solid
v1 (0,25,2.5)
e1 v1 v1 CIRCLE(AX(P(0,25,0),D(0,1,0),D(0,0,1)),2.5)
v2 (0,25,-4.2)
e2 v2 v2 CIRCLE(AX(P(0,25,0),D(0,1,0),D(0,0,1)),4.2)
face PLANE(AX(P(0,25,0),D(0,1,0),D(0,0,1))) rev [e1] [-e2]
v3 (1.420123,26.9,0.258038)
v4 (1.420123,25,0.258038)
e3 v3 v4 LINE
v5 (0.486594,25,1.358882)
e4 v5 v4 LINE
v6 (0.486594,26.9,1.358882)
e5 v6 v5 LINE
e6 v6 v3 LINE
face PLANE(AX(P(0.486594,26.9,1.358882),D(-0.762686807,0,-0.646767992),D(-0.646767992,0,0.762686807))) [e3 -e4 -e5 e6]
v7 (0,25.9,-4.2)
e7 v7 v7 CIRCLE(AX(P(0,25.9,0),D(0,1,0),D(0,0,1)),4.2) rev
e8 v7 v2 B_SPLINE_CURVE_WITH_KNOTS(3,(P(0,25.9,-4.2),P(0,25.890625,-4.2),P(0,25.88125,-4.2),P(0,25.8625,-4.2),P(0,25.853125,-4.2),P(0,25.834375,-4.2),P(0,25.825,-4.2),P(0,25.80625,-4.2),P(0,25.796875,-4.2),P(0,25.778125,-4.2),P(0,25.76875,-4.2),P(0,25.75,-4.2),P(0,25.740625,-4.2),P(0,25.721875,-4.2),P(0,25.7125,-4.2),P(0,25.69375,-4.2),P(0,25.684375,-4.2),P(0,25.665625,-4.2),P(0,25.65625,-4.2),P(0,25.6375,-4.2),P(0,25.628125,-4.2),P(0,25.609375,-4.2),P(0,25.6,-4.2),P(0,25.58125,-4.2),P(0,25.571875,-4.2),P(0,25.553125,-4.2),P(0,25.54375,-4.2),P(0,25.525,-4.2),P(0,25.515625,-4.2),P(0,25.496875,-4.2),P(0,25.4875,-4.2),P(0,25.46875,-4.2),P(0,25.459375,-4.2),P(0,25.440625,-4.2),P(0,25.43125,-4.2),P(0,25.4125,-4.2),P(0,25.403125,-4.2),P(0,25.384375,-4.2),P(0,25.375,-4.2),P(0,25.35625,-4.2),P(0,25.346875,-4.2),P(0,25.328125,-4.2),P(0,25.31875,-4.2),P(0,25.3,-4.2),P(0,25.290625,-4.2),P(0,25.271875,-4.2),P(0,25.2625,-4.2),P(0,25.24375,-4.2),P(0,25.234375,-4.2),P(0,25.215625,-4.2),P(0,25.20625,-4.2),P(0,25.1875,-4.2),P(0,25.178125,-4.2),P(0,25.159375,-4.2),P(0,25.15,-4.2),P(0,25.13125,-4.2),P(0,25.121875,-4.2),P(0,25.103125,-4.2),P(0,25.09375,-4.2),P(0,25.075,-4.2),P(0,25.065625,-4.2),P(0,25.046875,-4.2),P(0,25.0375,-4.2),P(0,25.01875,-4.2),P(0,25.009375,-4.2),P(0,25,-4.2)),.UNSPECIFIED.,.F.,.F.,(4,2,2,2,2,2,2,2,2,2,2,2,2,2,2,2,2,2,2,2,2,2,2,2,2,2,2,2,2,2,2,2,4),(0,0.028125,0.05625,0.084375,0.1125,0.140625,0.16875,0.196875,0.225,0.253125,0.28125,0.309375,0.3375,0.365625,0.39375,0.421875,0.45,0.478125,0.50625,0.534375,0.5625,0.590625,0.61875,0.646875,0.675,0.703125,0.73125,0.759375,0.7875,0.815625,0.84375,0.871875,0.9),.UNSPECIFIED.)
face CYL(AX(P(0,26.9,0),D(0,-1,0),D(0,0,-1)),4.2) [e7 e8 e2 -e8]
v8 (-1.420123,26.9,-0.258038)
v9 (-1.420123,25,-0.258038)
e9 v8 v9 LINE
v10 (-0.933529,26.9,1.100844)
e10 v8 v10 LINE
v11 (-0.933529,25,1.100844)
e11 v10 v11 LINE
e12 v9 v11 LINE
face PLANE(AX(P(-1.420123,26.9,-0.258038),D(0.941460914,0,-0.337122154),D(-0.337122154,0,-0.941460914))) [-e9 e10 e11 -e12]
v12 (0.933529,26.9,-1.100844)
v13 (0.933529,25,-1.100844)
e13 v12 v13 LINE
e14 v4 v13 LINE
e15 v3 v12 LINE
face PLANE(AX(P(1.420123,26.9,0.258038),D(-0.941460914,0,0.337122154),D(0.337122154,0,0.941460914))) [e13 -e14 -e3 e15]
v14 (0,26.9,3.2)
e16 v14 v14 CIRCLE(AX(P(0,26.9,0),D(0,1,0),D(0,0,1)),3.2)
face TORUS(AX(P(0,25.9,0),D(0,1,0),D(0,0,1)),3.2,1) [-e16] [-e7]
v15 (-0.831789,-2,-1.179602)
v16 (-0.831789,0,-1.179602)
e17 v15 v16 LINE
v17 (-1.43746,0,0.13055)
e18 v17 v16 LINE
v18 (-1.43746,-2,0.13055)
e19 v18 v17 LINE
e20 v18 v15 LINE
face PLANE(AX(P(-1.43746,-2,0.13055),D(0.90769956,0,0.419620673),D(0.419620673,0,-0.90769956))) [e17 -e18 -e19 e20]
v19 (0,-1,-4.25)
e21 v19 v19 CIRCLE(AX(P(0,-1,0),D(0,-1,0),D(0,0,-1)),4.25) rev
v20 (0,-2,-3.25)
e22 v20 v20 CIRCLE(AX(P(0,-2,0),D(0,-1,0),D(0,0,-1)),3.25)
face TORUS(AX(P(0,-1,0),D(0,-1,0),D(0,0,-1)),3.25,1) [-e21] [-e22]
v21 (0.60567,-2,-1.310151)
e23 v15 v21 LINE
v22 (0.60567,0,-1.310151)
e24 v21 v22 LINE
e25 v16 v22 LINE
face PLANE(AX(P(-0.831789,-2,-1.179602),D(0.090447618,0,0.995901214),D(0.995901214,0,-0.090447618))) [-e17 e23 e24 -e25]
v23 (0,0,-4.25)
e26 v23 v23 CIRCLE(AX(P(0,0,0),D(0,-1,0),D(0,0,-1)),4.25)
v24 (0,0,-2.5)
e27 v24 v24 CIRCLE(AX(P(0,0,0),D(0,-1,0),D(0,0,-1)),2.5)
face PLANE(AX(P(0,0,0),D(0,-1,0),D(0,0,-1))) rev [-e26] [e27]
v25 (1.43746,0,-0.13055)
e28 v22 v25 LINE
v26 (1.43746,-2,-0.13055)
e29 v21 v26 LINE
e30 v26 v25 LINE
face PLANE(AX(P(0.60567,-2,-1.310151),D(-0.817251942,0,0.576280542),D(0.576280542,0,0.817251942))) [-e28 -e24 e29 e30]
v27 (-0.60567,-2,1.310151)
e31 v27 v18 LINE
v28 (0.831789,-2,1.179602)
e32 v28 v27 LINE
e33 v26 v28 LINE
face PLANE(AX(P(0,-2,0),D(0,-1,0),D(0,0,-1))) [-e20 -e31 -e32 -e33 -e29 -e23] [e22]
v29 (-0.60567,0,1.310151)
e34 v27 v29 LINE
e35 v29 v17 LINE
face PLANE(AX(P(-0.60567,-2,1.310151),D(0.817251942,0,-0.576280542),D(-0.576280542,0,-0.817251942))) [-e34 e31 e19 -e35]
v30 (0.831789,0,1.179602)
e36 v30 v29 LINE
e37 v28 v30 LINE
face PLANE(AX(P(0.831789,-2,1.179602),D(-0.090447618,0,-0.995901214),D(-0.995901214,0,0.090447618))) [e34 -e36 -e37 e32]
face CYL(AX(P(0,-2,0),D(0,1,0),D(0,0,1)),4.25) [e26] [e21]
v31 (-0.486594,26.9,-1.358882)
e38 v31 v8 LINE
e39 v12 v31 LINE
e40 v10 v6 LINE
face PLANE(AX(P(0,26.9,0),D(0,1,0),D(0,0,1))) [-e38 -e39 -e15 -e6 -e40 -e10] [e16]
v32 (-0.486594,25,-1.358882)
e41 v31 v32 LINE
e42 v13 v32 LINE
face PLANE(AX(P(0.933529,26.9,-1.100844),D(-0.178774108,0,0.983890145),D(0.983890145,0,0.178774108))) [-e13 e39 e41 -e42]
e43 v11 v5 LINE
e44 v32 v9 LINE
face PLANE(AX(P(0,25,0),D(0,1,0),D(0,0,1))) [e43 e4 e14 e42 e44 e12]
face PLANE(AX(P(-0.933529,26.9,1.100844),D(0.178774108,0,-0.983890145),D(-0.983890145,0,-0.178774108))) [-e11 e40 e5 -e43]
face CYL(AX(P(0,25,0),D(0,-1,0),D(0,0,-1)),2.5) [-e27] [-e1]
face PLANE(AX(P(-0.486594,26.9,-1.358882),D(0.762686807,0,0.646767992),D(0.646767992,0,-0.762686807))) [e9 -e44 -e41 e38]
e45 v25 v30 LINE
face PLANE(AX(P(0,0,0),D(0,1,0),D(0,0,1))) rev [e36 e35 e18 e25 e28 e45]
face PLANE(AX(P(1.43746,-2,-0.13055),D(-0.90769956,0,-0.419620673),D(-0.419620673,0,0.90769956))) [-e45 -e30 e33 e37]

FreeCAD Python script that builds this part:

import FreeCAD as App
import Part
import Sketcher

V = App.Vector
Q = App.Units.Quantity


def edges_at(feature, points):
    """Names of the edges that pass closest to the given points."""
    edges = feature.Shape.Edges
    near = lambda p: min(range(len(edges)), key=lambda i: edges[i].distToShape(Part.Vertex(*p))[0])
    return sorted({f"Edge{near(p) + 1}" for p in points})


def add_polygon(sketch, points):
    """Adds a closed chain of lines whose ends are joined by coincident constraints."""
    first, n = sketch.GeometryCount, len(points)
    for a, b in zip(points, points[1:] + points[:1]):
        sketch.addGeometry(Part.LineSegment(App.Vector(*a, 0), App.Vector(*b, 0)), False)
    for i in range(n):
        sketch.addConstraint(Sketcher.Constraint("Coincident", first + i, 2, first + (i + 1) % n, 1))

doc = App.newDocument("Part")
params = doc.addObject("Spreadsheet::Sheet", "Params")
for row, (alias, value) in enumerate([
    ("sketch1_diameter", "5 mm"),
    ("pad1_length", "25 mm"),
    ("sketch2_diameter", "8.4 mm"),
    ("pad2_length", "1.9 mm"),
    ("sketch3_diameter", "8.5 mm"),
    ("pad3_length", "2 mm"),
    ("fillet_radius", "1 mm"),
], start=1):
    params.set(f"A{row}", alias)
    params.set(f"B{row}", "=" + value)
    params.setAlias(f"B{row}", alias)

body = doc.addObject("PartDesign::Body", "Body")

# Sketch on XZ plane
sketch1 = body.newObject("Sketcher::SketchObject", "Sketch")
sketch1.AttachmentSupport = (doc.getObject("XZ_Plane"), [""])
sketch1.MapMode = "FlatFace"
sketch1.addGeometry(Part.Circle(V(0, 0, 0), V(0, 0, 1), 2.5), False)
sketch1.addConstraint(Sketcher.Constraint("Coincident", 0, 3, -1, 1))
sketch1.addConstraint(Sketcher.Constraint("Diameter", 0, Q("5 mm")))
sketch1.setExpression("Constraints[1]", "Params.sketch1_diameter")
pad1 = body.newObject("PartDesign::Pad", "Pad")
pad1.Profile = sketch1
pad1.setExpression("Length", "Params.pad1_length")
pad1.Reversed = True

# Sketch on XZ plane
sketch2 = body.newObject("Sketcher::SketchObject", "Sketch001")
sketch2.AttachmentSupport = (doc.getObject("XZ_Plane"), [""])
sketch2.MapMode = "FlatFace"
sketch2.AttachmentOffset = App.Placement(V(0, 0, -25), App.Rotation())
sketch2.addGeometry(Part.Circle(V(0, 0, 0), V(0, 0, 1), 4.2), False)  # 0
add_polygon(sketch2, [(-0.486594, -1.358882), (0.933529, -1.100844), (1.420123, 0.258038), (0.486594, 1.358882), (-0.933529, 1.100844), (-1.420123, -0.258038)])  # lines 1-6
sketch2.addConstraint(Sketcher.Constraint("Coincident", 0, 3, -1, 1))
sketch2.addConstraint(Sketcher.Constraint("Symmetric", 1, 2, 4, 2, -1, 1))
sketch2.addConstraint(Sketcher.Constraint("Symmetric", 2, 2, 5, 2, -1, 1))
sketch2.addConstraint(Sketcher.Constraint("Symmetric", 3, 2, 6, 2, -1, 1))
sketch2.addConstraint(Sketcher.Constraint("Equal", 1, 2))
sketch2.addConstraint(Sketcher.Constraint("Equal", 2, 3))
sketch2.addConstraint(Sketcher.Constraint("Diameter", 0, Q("8.4 mm")))
sketch2.addConstraint(Sketcher.Constraint("DistanceX", -1, 1, 1, 2, Q("0.933529 mm")))
sketch2.addConstraint(Sketcher.Constraint("DistanceY", -1, 1, 2, 2, Q("0.258038 mm")))
sketch2.addConstraint(Sketcher.Constraint("DistanceY", -1, 1, 3, 2, Q("1.358882 mm")))
sketch2.addConstraint(Sketcher.Constraint("DistanceY", 1, 2, 2, 2, Q("1.358882 mm")))
sketch2.setExpression("Constraints[12]", "Params.sketch2_diameter")
pad2 = body.newObject("PartDesign::Pad", "Pad001")
pad2.Profile = sketch2
pad2.setExpression("Length", "Params.pad2_length")
pad2.Reversed = True

# Sketch on XZ plane
sketch3 = body.newObject("Sketcher::SketchObject", "Sketch002")
sketch3.AttachmentSupport = (doc.getObject("XZ_Plane"), [""])
sketch3.MapMode = "FlatFace"
sketch3.addGeometry(Part.Circle(V(0, 0, 0), V(0, 0, 1), 4.25), False)  # 0
add_polygon(sketch3, [(-0.60567, 1.310151), (0.831789, 1.179602), (1.43746, -0.13055), (0.60567, -1.310151), (-0.831789, -1.179602), (-1.43746, 0.13055)])  # lines 1-6
sketch3.addConstraint(Sketcher.Constraint("Coincident", 0, 3, -1, 1))
sketch3.addConstraint(Sketcher.Constraint("Symmetric", 1, 2, 4, 2, -1, 1))
sketch3.addConstraint(Sketcher.Constraint("Symmetric", 2, 2, 5, 2, -1, 1))
sketch3.addConstraint(Sketcher.Constraint("Symmetric", 3, 2, 6, 2, -1, 1))
sketch3.addConstraint(Sketcher.Constraint("Equal", 1, 2))
sketch3.addConstraint(Sketcher.Constraint("Equal", 2, 3))
sketch3.addConstraint(Sketcher.Constraint("Diameter", 0, Q("8.5 mm")))
sketch3.addConstraint(Sketcher.Constraint("DistanceY", -1, 1, 1, 2, Q("1.179602 mm")))
sketch3.addConstraint(Sketcher.Constraint("DistanceY", 3, 2, 2, 2, Q("1.179602 mm")))
sketch3.addConstraint(Sketcher.Constraint("DistanceY", 3, 2, 5, 2, Q("1.440701 mm")))
sketch3.addConstraint(Sketcher.Constraint("DistanceX", -1, 1, 1, 2, Q("0.831789 mm")))
sketch3.setExpression("Constraints[12]", "Params.sketch3_diameter")
pad3 = body.newObject("PartDesign::Pad", "Pad002")
pad3.Profile = sketch3
pad3.setExpression("Length", "Params.pad3_length")
doc.recompute()

fillet = body.newObject("PartDesign::Fillet", "Fillet")
fillet.Base = (pad3, edges_at(pad3, [(0, 26.9, 4.2), (0, -2, 4.25)]))
fillet.setExpression("Radius", "Params.fillet_radius")

doc.recompute()
